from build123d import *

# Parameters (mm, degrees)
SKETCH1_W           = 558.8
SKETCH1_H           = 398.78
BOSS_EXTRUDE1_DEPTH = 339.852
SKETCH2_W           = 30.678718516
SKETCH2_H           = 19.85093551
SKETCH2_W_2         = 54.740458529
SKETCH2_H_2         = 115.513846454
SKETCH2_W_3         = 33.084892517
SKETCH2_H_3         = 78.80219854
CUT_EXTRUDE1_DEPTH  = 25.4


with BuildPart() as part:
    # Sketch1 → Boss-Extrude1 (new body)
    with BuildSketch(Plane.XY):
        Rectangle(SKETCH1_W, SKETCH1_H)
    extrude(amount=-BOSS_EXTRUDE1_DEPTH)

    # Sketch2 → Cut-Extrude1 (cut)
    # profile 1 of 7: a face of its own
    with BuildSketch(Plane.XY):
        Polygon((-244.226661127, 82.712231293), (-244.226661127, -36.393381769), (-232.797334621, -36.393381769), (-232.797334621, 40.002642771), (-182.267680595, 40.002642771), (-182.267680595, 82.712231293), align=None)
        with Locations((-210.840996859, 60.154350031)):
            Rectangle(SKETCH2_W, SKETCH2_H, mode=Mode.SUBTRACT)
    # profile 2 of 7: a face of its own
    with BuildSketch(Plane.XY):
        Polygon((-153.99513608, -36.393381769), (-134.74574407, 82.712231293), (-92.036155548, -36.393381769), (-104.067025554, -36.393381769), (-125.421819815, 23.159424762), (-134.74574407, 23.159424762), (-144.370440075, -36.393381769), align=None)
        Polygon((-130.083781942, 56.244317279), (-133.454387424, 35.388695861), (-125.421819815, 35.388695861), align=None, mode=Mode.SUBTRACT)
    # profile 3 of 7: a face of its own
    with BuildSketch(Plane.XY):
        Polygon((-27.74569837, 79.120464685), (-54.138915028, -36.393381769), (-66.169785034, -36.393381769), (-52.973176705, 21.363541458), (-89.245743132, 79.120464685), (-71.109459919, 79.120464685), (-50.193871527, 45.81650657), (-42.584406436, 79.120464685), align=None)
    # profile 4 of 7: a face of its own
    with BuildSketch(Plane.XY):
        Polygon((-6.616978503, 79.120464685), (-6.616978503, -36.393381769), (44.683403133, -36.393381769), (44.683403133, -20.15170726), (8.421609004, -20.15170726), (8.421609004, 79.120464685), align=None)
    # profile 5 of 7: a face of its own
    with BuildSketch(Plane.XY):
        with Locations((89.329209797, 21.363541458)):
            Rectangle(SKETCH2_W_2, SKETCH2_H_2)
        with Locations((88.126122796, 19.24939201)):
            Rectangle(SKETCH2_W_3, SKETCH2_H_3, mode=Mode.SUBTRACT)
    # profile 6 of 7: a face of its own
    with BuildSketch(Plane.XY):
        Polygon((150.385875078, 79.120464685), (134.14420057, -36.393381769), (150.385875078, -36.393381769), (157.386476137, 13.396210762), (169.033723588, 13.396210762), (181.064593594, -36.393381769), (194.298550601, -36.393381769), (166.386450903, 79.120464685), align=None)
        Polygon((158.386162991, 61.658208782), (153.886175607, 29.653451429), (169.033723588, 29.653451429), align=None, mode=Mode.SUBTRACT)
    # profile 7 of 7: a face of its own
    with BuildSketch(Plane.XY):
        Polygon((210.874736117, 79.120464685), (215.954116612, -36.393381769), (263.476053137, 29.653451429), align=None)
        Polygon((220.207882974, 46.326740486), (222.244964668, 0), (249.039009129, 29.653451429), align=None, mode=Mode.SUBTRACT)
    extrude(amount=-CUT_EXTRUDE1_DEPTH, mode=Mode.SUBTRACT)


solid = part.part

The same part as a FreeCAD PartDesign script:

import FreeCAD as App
import Part
import Sketcher
Q = App.Units.Quantity

doc = App.newDocument("Part")
body = doc.addObject("PartDesign::Body", "Body")

sketch1 = body.newObject("Sketcher::SketchObject", "Sketch")
sketch1.AttachmentSupport = (doc.getObject("XY_Plane"), [""])
sketch1.MapMode = "FlatFace"
sketch1.addGeometry(Part.LineSegment(App.Vector(-279, 199, 0), App.Vector(-279, -199, 0)), False)
sketch1.addGeometry(Part.LineSegment(App.Vector(-279, -199, 0), App.Vector(279, -199, 0)), False)
sketch1.addGeometry(Part.LineSegment(App.Vector(279, -199, 0), App.Vector(279, 199, 0)), False)
sketch1.addGeometry(Part.LineSegment(App.Vector(279, 199, 0), App.Vector(-279, 199, 0)), False)
sketch1.addConstraint(Sketcher.Constraint("Coincident", 0, 2, 1, 1))
sketch1.addConstraint(Sketcher.Constraint("Coincident", 1, 2, 2, 1))
sketch1.addConstraint(Sketcher.Constraint("Coincident", 2, 2, 3, 1))
sketch1.addConstraint(Sketcher.Constraint("Coincident", 3, 2, 0, 1))
sketch1.addConstraint(Sketcher.Constraint("Vertical", 0))
sketch1.addConstraint(Sketcher.Constraint("Horizontal", 1))
sketch1.addConstraint(Sketcher.Constraint("Vertical", 2))
sketch1.addConstraint(Sketcher.Constraint("Horizontal", 3))
sketch1.addConstraint(Sketcher.Constraint("Symmetric", 0, 2, 2, 2, -1, 1))
sketch1.addConstraint(Sketcher.Constraint("DistanceX", 1, 1, 1, 2, Q("22 in")))
sketch1.addConstraint(Sketcher.Constraint("DistanceY", 0, 2, 0, 1, Q("15.7 in")))
pad1 = body.newObject("PartDesign::Pad", "Pad")
pad1.Profile = sketch1
pad1.Length = Q("13.38 in")
pad1.Reversed = True

sketch2 = body.newObject("Sketcher::SketchObject", "Sketch001")
sketch2.AttachmentSupport = (doc.getObject("XY_Plane"), [""])
sketch2.MapMode = "FlatFace"
sketch2.addGeometry(Part.LineSegment(App.Vector(-244.226661, 82.712231, 0), App.Vector(-244.226661, -36.393382, 0)), False)
sketch2.addGeometry(Part.LineSegment(App.Vector(-244.226661, -36.393382, 0), App.Vector(-232.797335, -36.393382, 0)), False)
sketch2.addGeometry(Part.LineSegment(App.Vector(-232.797335, -36.393382, 0), App.Vector(-232.797335, 40.002643, 0)), False)
sketch2.addGeometry(Part.LineSegment(App.Vector(-232.797335, 40.002643, 0), App.Vector(-182.267681, 40.002643, 0)), False)
sketch2.addGeometry(Part.LineSegment(App.Vector(-182.267681, 40.002643, 0), App.Vector(-182.267681, 82.712231, 0)), False)
sketch2.addGeometry(Part.LineSegment(App.Vector(-182.267681, 82.712231, 0), App.Vector(-244.226661, 82.712231, 0)), False)
sketch2.addGeometry(Part.LineSegment(App.Vector(-195.501638, 50.228882, 0), App.Vector(-226.180356, 50.228882, 0)), False)
sketch2.addGeometry(Part.LineSegment(App.Vector(-226.180356, 50.228882, 0), App.Vector(-226.180356, 70.079818, 0)), False)
sketch2.addGeometry(Part.LineSegment(App.Vector(-226.180356, 70.079818, 0), App.Vector(-195.501638, 70.079818, 0)), False)
sketch2.addGeometry(Part.LineSegment(App.Vector(-195.501638, 70.079818, 0), App.Vector(-195.501638, 50.228882, 0)), False)
sketch2.addGeometry(Part.LineSegment(App.Vector(-134.745744, 82.712231, 0), App.Vector(-153.995136, -36.393382, 0)), False)
sketch2.addGeometry(Part.LineSegment(App.Vector(-153.995136, -36.393382, 0), App.Vector(-144.37044, -36.393382, 0)), False)
sketch2.addGeometry(Part.LineSegment(App.Vector(-144.37044, -36.393382, 0), App.Vector(-134.745744, 23.159425, 0)), False)
sketch2.addGeometry(Part.LineSegment(App.Vector(-134.745744, 23.159425, 0), App.Vector(-125.42182, 23.159425, 0)), False)
sketch2.addGeometry(Part.LineSegment(App.Vector(-125.42182, 23.159425, 0), App.Vector(-104.067026, -36.393382, 0)), False)
sketch2.addGeometry(Part.LineSegment(App.Vector(-104.067026, -36.393382, 0), App.Vector(-92.036156, -36.393382, 0)), False)
sketch2.addGeometry(Part.LineSegment(App.Vector(-92.036156, -36.393382, 0), App.Vector(-134.745744, 82.712231, 0)), False)
sketch2.addGeometry(Part.LineSegment(App.Vector(-130.083782, 56.244317, 0), App.Vector(-125.42182, 35.388696, 0)), False)
sketch2.addGeometry(Part.LineSegment(App.Vector(-125.42182, 35.388696, 0), App.Vector(-133.454387, 35.388696, 0)), False)
sketch2.addGeometry(Part.LineSegment(App.Vector(-133.454387, 35.388696, 0), App.Vector(-130.083782, 56.244317, 0)), False)
sketch2.addGeometry(Part.LineSegment(App.Vector(-54.138915, -36.393382, 0), App.Vector(-27.745698, 79.120465, 0)), False)
sketch2.addGeometry(Part.LineSegment(App.Vector(-27.745698, 79.120465, 0), App.Vector(-42.584406, 79.120465, 0)), False)
sketch2.addGeometry(Part.LineSegment(App.Vector(-42.584406, 79.120465, 0), App.Vector(-50.193872, 45.816507, 0)), False)
sketch2.addGeometry(Part.LineSegment(App.Vector(-50.193872, 45.816507, 0), App.Vector(-71.10946, 79.120465, 0)), False)
sketch2.addGeometry(Part.LineSegment(App.Vector(-71.10946, 79.120465, 0), App.Vector(-89.245743, 79.120465, 0)), False)
sketch2.addGeometry(Part.LineSegment(App.Vector(-89.245743, 79.120465, 0), App.Vector(-52.973177, 21.363541, 0)), False)
sketch2.addGeometry(Part.LineSegment(App.Vector(-52.973177, 21.363541, 0), App.Vector(-66.169785, -36.393382, 0)), False)
sketch2.addGeometry(Part.LineSegment(App.Vector(-66.169785, -36.393382, 0), App.Vector(-54.138915, -36.393382, 0)), False)
sketch2.addGeometry(Part.LineSegment(App.Vector(-6.616979, 79.120465, 0), App.Vector(-6.616979, -36.393382, 0)), False)
sketch2.addGeometry(Part.LineSegment(App.Vector(-6.616979, -36.393382, 0), App.Vector(44.683403, -36.393382, 0)), False)
sketch2.addGeometry(Part.LineSegment(App.Vector(44.683403, -36.393382, 0), App.Vector(44.683403, -20.151707, 0)), False)
sketch2.addGeometry(Part.LineSegment(App.Vector(44.683403, -20.151707, 0), App.Vector(8.421609, -20.151707, 0)), False)
sketch2.addGeometry(Part.LineSegment(App.Vector(8.421609, -20.151707, 0), App.Vector(8.421609, 79.120465, 0)), False)
sketch2.addGeometry(Part.LineSegment(App.Vector(8.421609, 79.120465, 0), App.Vector(-6.616979, 79.120465, 0)), False)
sketch2.addGeometry(Part.LineSegment(App.Vector(61.958981, 79.120465, 0), App.Vector(61.958981, -36.393382, 0)), False)
sketch2.addGeometry(Part.LineSegment(App.Vector(61.958981, -36.393382, 0), App.Vector(116.699439, -36.393382, 0)), False)
sketch2.addGeometry(Part.LineSegment(App.Vector(116.699439, -36.393382, 0), App.Vector(116.699439, 79.120465, 0)), False)
sketch2.addGeometry(Part.LineSegment(App.Vector(116.699439, 79.120465, 0), App.Vector(61.958981, 79.120465, 0)), False)
sketch2.addGeometry(Part.LineSegment(App.Vector(104.668569, -20.151707, 0), App.Vector(71.583677, -20.151707, 0)), False)
sketch2.addGeometry(Part.LineSegment(App.Vector(71.583677, -20.151707, 0), App.Vector(71.583677, 58.650491, 0)), False)
sketch2.addGeometry(Part.LineSegment(App.Vector(71.583677, 58.650491, 0), App.Vector(104.668569, 58.650491, 0)), False)
sketch2.addGeometry(Part.LineSegment(App.Vector(104.668569, 58.650491, 0), App.Vector(104.668569, -20.151707, 0)), False)
sketch2.addGeometry(Part.LineSegment(App.Vector(150.385875, 79.120465, 0), App.Vector(134.144201, -36.393382, 0)), False)
sketch2.addGeometry(Part.LineSegment(App.Vector(134.144201, -36.393382, 0), App.Vector(150.385875, -36.393382, 0)), False)
sketch2.addGeometry(Part.LineSegment(App.Vector(150.385875, -36.393382, 0), App.Vector(157.386476, 13.396211, 0)), False)
sketch2.addGeometry(Part.LineSegment(App.Vector(157.386476, 13.396211, 0), App.Vector(169.033724, 13.396211, 0)), False)
sketch2.addGeometry(Part.LineSegment(App.Vector(169.033724, 13.396211, 0), App.Vector(181.064594, -36.393382, 0)), False)
sketch2.addGeometry(Part.LineSegment(App.Vector(181.064594, -36.393382, 0), App.Vector(194.298551, -36.393382, 0)), False)
sketch2.addGeometry(Part.LineSegment(App.Vector(194.298551, -36.393382, 0), App.Vector(166.386451, 79.120465, 0)), False)
sketch2.addGeometry(Part.LineSegment(App.Vector(166.386451, 79.120465, 0), App.Vector(150.385875, 79.120465, 0)), False)
sketch2.addGeometry(Part.LineSegment(App.Vector(153.886176, 29.653451, 0), App.Vector(158.386163, 61.658209, 0)), False)
sketch2.addGeometry(Part.LineSegment(App.Vector(158.386163, 61.658209, 0), App.Vector(169.033724, 29.653451, 0)), False)
sketch2.addGeometry(Part.LineSegment(App.Vector(169.033724, 29.653451, 0), App.Vector(153.886176, 29.653451, 0)), False)
sketch2.addGeometry(Part.LineSegment(App.Vector(210.874736, 79.120465, 0), App.Vector(215.954117, -36.393382, 0)), False)
sketch2.addGeometry(Part.LineSegment(App.Vector(215.954117, -36.393382, 0), App.Vector(263.476053, 29.653451, 0)), False)
sketch2.addGeometry(Part.LineSegment(App.Vector(263.476053, 29.653451, 0), App.Vector(210.874736, 79.120465, 0)), False)
sketch2.addGeometry(Part.LineSegment(App.Vector(222.244965, 0, 0), App.Vector(220.207883, 46.32674, 0)), False)
sketch2.addGeometry(Part.LineSegment(App.Vector(220.207883, 46.32674, 0), App.Vector(249.039009, 29.653451, 0)), False)
sketch2.addGeometry(Part.LineSegment(App.Vector(249.039009, 29.653451, 0), App.Vector(222.244965, 0, 0)), False)
sketch2.addConstraint(Sketcher.Constraint("Coincident", 0, 2, 1, 1))
sketch2.addConstraint(Sketcher.Constraint("Coincident", 1, 2, 2, 1))
sketch2.addConstraint(Sketcher.Constraint("Coincident", 2, 2, 3, 1))
sketch2.addConstraint(Sketcher.Constraint("Coincident", 3, 2, 4, 1))
sketch2.addConstraint(Sketcher.Constraint("Coincident", 4, 2, 5, 1))
sketch2.addConstraint(Sketcher.Constraint("Coincident", 5, 2, 0, 1))
sketch2.addConstraint(Sketcher.Constraint("Coincident", 6, 2, 7, 1))
sketch2.addConstraint(Sketcher.Constraint("Coincident", 7, 2, 8, 1))
sketch2.addConstraint(Sketcher.Constraint("Coincident", 8, 2, 9, 1))
sketch2.addConstraint(Sketcher.Constraint("Coincident", 9, 2, 6, 1))
sketch2.addConstraint(Sketcher.Constraint("Coincident", 10, 2, 11, 1))
sketch2.addConstraint(Sketcher.Constraint("Coincident", 11, 2, 12, 1))
sketch2.addConstraint(Sketcher.Constraint("Coincident", 12, 2, 13, 1))
sketch2.addConstraint(Sketcher.Constraint("Coincident", 13, 2, 14, 1))
sketch2.addConstraint(Sketcher.Constraint("Coincident", 14, 2, 15, 1))
sketch2.addConstraint(Sketcher.Constraint("Coincident", 15, 2, 16, 1))
sketch2.addConstraint(Sketcher.Constraint("Coincident", 16, 2, 10, 1))
sketch2.addConstraint(Sketcher.Constraint("Coincident", 17, 2, 18, 1))
sketch2.addConstraint(Sketcher.Constraint("Coincident", 18, 2, 19, 1))
sketch2.addConstraint(Sketcher.Constraint("Coincident", 19, 2, 17, 1))
sketch2.addConstraint(Sketcher.Constraint("Coincident", 20, 2, 21, 1))
sketch2.addConstraint(Sketcher.Constraint("Coincident", 21, 2, 22, 1))
sketch2.addConstraint(Sketcher.Constraint("Coincident", 22, 2, 23, 1))
sketch2.addConstraint(Sketcher.Constraint("Coincident", 23, 2, 24, 1))
sketch2.addConstraint(Sketcher.Constraint("Coincident", 24, 2, 25, 1))
sketch2.addConstraint(Sketcher.Constraint("Coincident", 25, 2, 26, 1))
sketch2.addConstraint(Sketcher.Constraint("Coincident", 26, 2, 27, 1))
sketch2.addConstraint(Sketcher.Constraint("Coincident", 27, 2, 20, 1))
sketch2.addConstraint(Sketcher.Constraint("Coincident", 28, 2, 29, 1))
sketch2.addConstraint(Sketcher.Constraint("Coincident", 29, 2, 30, 1))
sketch2.addConstraint(Sketcher.Constraint("Coincident", 30, 2, 31, 1))
sketch2.addConstraint(Sketcher.Constraint("Coincident", 31, 2, 32, 1))
sketch2.addConstraint(Sketcher.Constraint("Coincident", 32, 2, 33, 1))
sketch2.addConstraint(Sketcher.Constraint("Coincident", 33, 2, 28, 1))
sketch2.addConstraint(Sketcher.Constraint("Coincident", 34, 2, 35, 1))
sketch2.addConstraint(Sketcher.Constraint("Coincident", 35, 2, 36, 1))
sketch2.addConstraint(Sketcher.Constraint("Coincident", 36, 2, 37, 1))
sketch2.addConstraint(Sketcher.Constraint("Coincident", 37, 2, 34, 1))
sketch2.addConstraint(Sketcher.Constraint("Coincident", 38, 2, 39, 1))
sketch2.addConstraint(Sketcher.Constraint("Coincident", 39, 2, 40, 1))
sketch2.addConstraint(Sketcher.Constraint("Coincident", 40, 2, 41, 1))
sketch2.addConstraint(Sketcher.Constraint("Coincident", 41, 2, 38, 1))
sketch2.addConstraint(Sketcher.Constraint("Coincident", 42, 2, 43, 1))
sketch2.addConstraint(Sketcher.Constraint("Coincident", 43, 2, 44, 1))
sketch2.addConstraint(Sketcher.Constraint("Coincident", 44, 2, 45, 1))
sketch2.addConstraint(Sketcher.Constraint("Coincident", 45, 2, 46, 1))
sketch2.addConstraint(Sketcher.Constraint("Coincident", 46, 2, 47, 1))
sketch2.addConstraint(Sketcher.Constraint("Coincident", 47, 2, 48, 1))
sketch2.addConstraint(Sketcher.Constraint("Coincident", 48, 2, 49, 1))
sketch2.addConstraint(Sketcher.Constraint("Coincident", 49, 2, 42, 1))
sketch2.addConstraint(Sketcher.Constraint("Coincident", 50, 2, 51, 1))
sketch2.addConstraint(Sketcher.Constraint("Coincident", 51, 2, 52, 1))
sketch2.addConstraint(Sketcher.Constraint("Coincident", 52, 2, 50, 1))
sketch2.addConstraint(Sketcher.Constraint("Coincident", 53, 2, 54, 1))
sketch2.addConstraint(Sketcher.Constraint("Coincident", 54, 2, 55, 1))
sketch2.addConstraint(Sketcher.Constraint("Coincident", 55, 2, 53, 1))
sketch2.addConstraint(Sketcher.Constraint("Coincident", 56, 2, 57, 1))
sketch2.addConstraint(Sketcher.Constraint("Coincident", 57, 2, 58, 1))
sketch2.addConstraint(Sketcher.Constraint("Coincident", 58, 2, 56, 1))
sketch2.addConstraint(Sketcher.Constraint("Vertical", 0))
sketch2.addConstraint(Sketcher.Constraint("Horizontal", 1))
sketch2.addConstraint(Sketcher.Constraint("Vertical", 2))
sketch2.addConstraint(Sketcher.Constraint("Horizontal", 3))
sketch2.addConstraint(Sketcher.Constraint("Vertical", 4))
sketch2.addConstraint(Sketcher.Constraint("Horizontal", 5))
sketch2.addConstraint(Sketcher.Constraint("Horizontal", 6))
sketch2.addConstraint(Sketcher.Constraint("Vertical", 7))
sketch2.addConstraint(Sketcher.Constraint("Horizontal", 8))
sketch2.addConstraint(Sketcher.Constraint("Vertical", 9))
sketch2.addConstraint(Sketcher.Constraint("Horizontal", 11))
sketch2.addConstraint(Sketcher.Constraint("Horizontal", 13))
sketch2.addConstraint(Sketcher.Constraint("Horizontal", 15))
sketch2.addConstraint(Sketcher.Constraint("Horizontal", 18))
sketch2.addConstraint(Sketcher.Constraint("Horizontal", 21))
sketch2.addConstraint(Sketcher.Constraint("Horizontal", 24))
sketch2.addConstraint(Sketcher.Constraint("Horizontal", 27))
sketch2.addConstraint(Sketcher.Constraint("Vertical", 28))
sketch2.addConstraint(Sketcher.Constraint("Horizontal", 29))
sketch2.addConstraint(Sketcher.Constraint("Vertical", 30))
sketch2.addConstraint(Sketcher.Constraint("Horizontal", 31))
sketch2.addConstraint(Sketcher.Constraint("Vertical", 32))
sketch2.addConstraint(Sketcher.Constraint("Horizontal", 33))
sketch2.addConstraint(Sketcher.Constraint("Vertical", 34))
sketch2.addConstraint(Sketcher.Constraint("Horizontal", 35))
sketch2.addConstraint(Sketcher.Constraint("Vertical", 36))
sketch2.addConstraint(Sketcher.Constraint("Horizontal", 37))
sketch2.addConstraint(Sketcher.Constraint("Horizontal", 38))
sketch2.addConstraint(Sketcher.Constraint("Vertical", 39))
sketch2.addConstraint(Sketcher.Constraint("Horizontal", 40))
sketch2.addConstraint(Sketcher.Constraint("Vertical", 41))
sketch2.addConstraint(Sketcher.Constraint("Horizontal", 43))
sketch2.addConstraint(Sketcher.Constraint("Horizontal", 45))
sketch2.addConstraint(Sketcher.Constraint("Horizontal", 47))
sketch2.addConstraint(Sketcher.Constraint("Horizontal", 49))
sketch2.addConstraint(Sketcher.Constraint("Horizontal", 52))
sketch2.addConstraint(Sketcher.Constraint("PointOnObject", 58, 2, -1))
sketch2.addConstraint(Sketcher.Constraint("DistanceX", 29, 1, 29, 2, Q("2.0197001 in")))
sketch2.addConstraint(Sketcher.Constraint("DistanceY", 39, 1, 39, 2, Q("78.802199 mm")))
sketch2.addConstraint(Sketcher.Constraint("DistanceX", 56, 2, 58, 2, Q("0.0802001 in")))
sketch2.addConstraint(Sketcher.Constraint("DistanceX", 5, 2, 5, 1, Q("61.958981 mm")))
sketch2.addConstraint(Sketcher.Constraint("DistanceX", 6, 2, 6, 1, Q("30.678719 mm")))
sketch2.addConstraint(Sketcher.Constraint("DistanceX", 15, 1, 15, 2, Q("12.03087 mm")))
sketch2.addConstraint(Sketcher.Constraint("DistanceX", 21, 2, 21, 1, Q("14.838708 mm")))
sketch2.addConstraint(Sketcher.Constraint("DistanceX", 27, 1, 27, 2, Q("12.03087 mm")))
sketch2.addConstraint(Sketcher.Constraint("DistanceX", 35, 1, 35, 2, Q("54.740459 mm")))
sketch2.addConstraint(Sketcher.Constraint("DistanceY", 4, 1, 4, 2, Q("42.709589 mm")))
sketch2.addConstraint(Sketcher.Constraint("DistanceY", 32, 1, 32, 2, Q("99.272172 mm")))
sketch2.addConstraint(Sketcher.Constraint("DistanceX", 20, 2, -1, 1, Q("27.745698 mm")))
sketch2.addConstraint(Sketcher.Constraint("DistanceX", -1, 1, 42, 2, Q("134.144201 mm")))
sketch2.addConstraint(Sketcher.Constraint("DistanceX", 1, 2, 10, 2, Q("78.802199 mm")))
sketch2.addConstraint(Sketcher.Constraint("DistanceX", 9, 2, 10, 2, Q("41.506502 mm")))
sketch2.addConstraint(Sketcher.Constraint("DistanceX", 16, 2, 24, 2, Q("45.500001 mm")))
sketch2.addConstraint(Sketcher.Constraint("DistanceX", 25, 2, 28, 2, Q("46.356198 mm")))
sketch2.addConstraint(Sketcher.Constraint("DistanceX", 38, 2, 43, 2, Q("78.802199 mm")))
sketch2.addConstraint(Sketcher.Constraint("DistanceX", 43, 2, 44, 2, Q("7.000601 mm")))
sketch2.addConstraint(Sketcher.Constraint("DistanceX", 49, 2, 44, 2, Q("7.000601 mm")))
sketch2.addConstraint(Sketcher.Constraint("DistanceY", 44, 2, 50, 2, Q("48.261998 mm")))
sketch2.addConstraint(Sketcher.Constraint("DistanceX", 52, 2, 44, 2, Q("3.500301 mm")))
sketch2.addConstraint(Sketcher.Constraint("Distance", 14, Q("63.26582 mm")))
sketch2.addConstraint(Sketcher.Constraint("Distance", 16, Q("126.53164 mm")))
sketch2.addConstraint(Sketcher.Constraint("Distance", 20, Q("118.49072 mm")))
sketch2.addConstraint(Sketcher.Constraint("Distance", 26, Q("59.24536 mm")))
sketch2.addConstraint(Sketcher.Constraint("Distance", 42, Q("116.650078 mm")))
sketch2.addConstraint(Sketcher.Constraint("Distance", 44, Q("50.279339 mm")))
sketch2.addConstraint(Sketcher.Constraint("Distance", 46, Q("51.222508 mm")))
sketch2.addConstraint(Sketcher.Constraint("Distance", 48, Q("118.838268 mm")))
sketch2.addConstraint(Sketcher.Constraint("Distance", 51, Q("33.729439 mm")))
sketch2.addConstraint(Sketcher.Constraint("Distance", 54, Q("81.366569 mm")))
sketch2.addConstraint(Sketcher.Constraint("Distance", 55, Q("72.207229 mm")))
sketch2.addConstraint(Sketcher.Constraint("Distance", 57, Q("33.305141 mm")))
sketch2.addConstraint(Sketcher.Constraint("DistanceX", 1, 1, 1, 2, Q("11.429327 mm")))
sketch2.addConstraint(Sketcher.Constraint("DistanceX", 11, 1, 11, 2, Q("9.624696 mm")))
sketch2.addConstraint(Sketcher.Constraint("DistanceX", 13, 1, 13, 2, Q("9.323924 mm")))
sketch2.addConstraint(Sketcher.Constraint("DistanceX", 18, 2, 18, 1, Q("8.032568 mm")))
sketch2.addConstraint(Sketcher.Constraint("DistanceX", 24, 2, 24, 1, Q("18.136283 mm")))
sketch2.addConstraint(Sketcher.Constraint("DistanceX", 31, 2, 31, 1, Q("36.261794 mm")))
sketch2.addConstraint(Sketcher.Constraint("DistanceX", 38, 2, 38, 1, Q("33.084893 mm")))
sketch2.addConstraint(Sketcher.Constraint("DistanceX", 43, 1, 43, 2, Q("16.241675 mm")))
sketch2.addConstraint(Sketcher.Constraint("DistanceX", 45, 1, 45, 2, Q("11.647247 mm")))
sketch2.addConstraint(Sketcher.Constraint("DistanceX", 47, 1, 47, 2, Q("13.233957 mm")))
sketch2.addConstraint(Sketcher.Constraint("DistanceX", 52, 2, 52, 1, Q("15.147548 mm")))
sketch2.addConstraint(Sketcher.Constraint("DistanceY", 0, 2, 0, 1, Q("119.105613 mm")))
sketch2.addConstraint(Sketcher.Constraint("DistanceY", 7, 1, 7, 2, Q("19.850936 mm")))
sketch2.addConstraint(Sketcher.Constraint("DistanceY", 28, 2, 28, 1, Q("115.513846 mm")))
sketch2.addConstraint(Sketcher.Constraint("DistanceY", 34, 2, 34, 1, Q("115.513846 mm")))
sketch2.addConstraint(Sketcher.Constraint("DistanceX", 0, 2, -1, 1, Q("244.226661 mm")))
sketch2.addConstraint(Sketcher.Constraint("DistanceY", 0, 2, -1, 1, Q("36.393382 mm")))
sketch2.addConstraint(Sketcher.Constraint("DistanceY", 10, 2, -1, 1, Q("36.393382 mm")))
sketch2.addConstraint(Sketcher.Constraint("DistanceX", 13, 2, -1, 1, Q("125.42182 mm")))
sketch2.addConstraint(Sketcher.Constraint("DistanceY", 14, 2, -1, 1, Q("36.393382 mm")))
sketch2.addConstraint(Sketcher.Constraint("DistanceY", -1, 1, 16, 2, Q("82.712231 mm")))
sketch2.addConstraint(Sketcher.Constraint("DistanceX", 17, 2, -1, 1, Q("125.42182 mm")))
sketch2.addConstraint(Sketcher.Constraint("DistanceX", 19, 2, -1, 1, Q("130.083782 mm")))
sketch2.addConstraint(Sketcher.Constraint("DistanceX", 22, 2, -1, 1, Q("50.193872 mm")))
sketch2.addConstraint(Sketcher.Constraint("DistanceX", 23, 2, -1, 1, Q("71.10946 mm")))
sketch2.addConstraint(Sketcher.Constraint("DistanceY", -1, 1, 25, 2, Q("21.363541 mm")))
sketch2.addConstraint(Sketcher.Constraint("DistanceY", 26, 2, -1, 1, Q("36.393382 mm")))
sketch2.addConstraint(Sketcher.Constraint("DistanceX", 28, 2, -1, 1, Q("6.616979 mm")))
sketch2.addConstraint(Sketcher.Constraint("DistanceY", 28, 2, -1, 1, Q("36.393382 mm")))
sketch2.addConstraint(Sketcher.Constraint("DistanceX", -1, 1, 34, 2, Q("61.958981 mm")))
sketch2.addConstraint(Sketcher.Constraint("DistanceY", 34, 2, -1, 1, Q("36.393382 mm")))
sketch2.addConstraint(Sketcher.Constraint("DistanceY", -1, 1, 39, 2, Q("58.650491 mm")))
sketch2.addConstraint(Sketcher.Constraint("DistanceY", 42, 2, -1, 1, Q("36.393382 mm")))
sketch2.addConstraint(Sketcher.Constraint("DistanceY", 46, 2, -1, 1, Q("36.393382 mm")))
sketch2.addConstraint(Sketcher.Constraint("DistanceY", -1, 1, 51, 2, Q("29.653451 mm")))
sketch2.addConstraint(Sketcher.Constraint("DistanceY", 53, 2, -1, 1, Q("36.393382 mm")))
sketch2.addConstraint(Sketcher.Constraint("DistanceY", -1, 1, 54, 2, Q("29.653451 mm")))
sketch2.addConstraint(Sketcher.Constraint("DistanceY", -1, 1, 56, 2, Q("46.32674 mm")))
sketch2.addConstraint(Sketcher.Constraint("DistanceX", -1, 1, 57, 2, Q("249.039009 mm")))
sketch2.addConstraint(Sketcher.Constraint("DistanceY", -1, 1, 57, 2, Q("29.653451 mm")))
sketch2.addConstraint(Sketcher.Constraint("DistanceY", 2, 2, 6, 2, Q("10.22624 mm")))
sketch2.addConstraint(Sketcher.Constraint("DistanceY", 13, 2, 17, 2, Q("12.229271 mm")))
sketch2.addConstraint(Sketcher.Constraint("DistanceY", 18, 2, 19, 2, Q("20.855621 mm")))
sketch2.addConstraint(Sketcher.Constraint("DistanceY", 22, 2, 21, 2, Q("33.303958 mm")))
sketch2.addConstraint(Sketcher.Constraint("DistanceY", 22, 2, 23, 2, Q("33.303958 mm")))
sketch2.addConstraint(Sketcher.Constraint("DistanceX", 43, 2, 53, 2, Q("65.568242 mm")))
sketch2.addConstraint(Sketcher.Constraint("DistanceX", 49, 2, 55, 2, Q("60.488861 mm")))
pocket1 = body.newObject("PartDesign::Pocket", "Pocket")
pocket1.Profile = sketch2
pocket1.Length = Q("1 in")

doc.recompute()
